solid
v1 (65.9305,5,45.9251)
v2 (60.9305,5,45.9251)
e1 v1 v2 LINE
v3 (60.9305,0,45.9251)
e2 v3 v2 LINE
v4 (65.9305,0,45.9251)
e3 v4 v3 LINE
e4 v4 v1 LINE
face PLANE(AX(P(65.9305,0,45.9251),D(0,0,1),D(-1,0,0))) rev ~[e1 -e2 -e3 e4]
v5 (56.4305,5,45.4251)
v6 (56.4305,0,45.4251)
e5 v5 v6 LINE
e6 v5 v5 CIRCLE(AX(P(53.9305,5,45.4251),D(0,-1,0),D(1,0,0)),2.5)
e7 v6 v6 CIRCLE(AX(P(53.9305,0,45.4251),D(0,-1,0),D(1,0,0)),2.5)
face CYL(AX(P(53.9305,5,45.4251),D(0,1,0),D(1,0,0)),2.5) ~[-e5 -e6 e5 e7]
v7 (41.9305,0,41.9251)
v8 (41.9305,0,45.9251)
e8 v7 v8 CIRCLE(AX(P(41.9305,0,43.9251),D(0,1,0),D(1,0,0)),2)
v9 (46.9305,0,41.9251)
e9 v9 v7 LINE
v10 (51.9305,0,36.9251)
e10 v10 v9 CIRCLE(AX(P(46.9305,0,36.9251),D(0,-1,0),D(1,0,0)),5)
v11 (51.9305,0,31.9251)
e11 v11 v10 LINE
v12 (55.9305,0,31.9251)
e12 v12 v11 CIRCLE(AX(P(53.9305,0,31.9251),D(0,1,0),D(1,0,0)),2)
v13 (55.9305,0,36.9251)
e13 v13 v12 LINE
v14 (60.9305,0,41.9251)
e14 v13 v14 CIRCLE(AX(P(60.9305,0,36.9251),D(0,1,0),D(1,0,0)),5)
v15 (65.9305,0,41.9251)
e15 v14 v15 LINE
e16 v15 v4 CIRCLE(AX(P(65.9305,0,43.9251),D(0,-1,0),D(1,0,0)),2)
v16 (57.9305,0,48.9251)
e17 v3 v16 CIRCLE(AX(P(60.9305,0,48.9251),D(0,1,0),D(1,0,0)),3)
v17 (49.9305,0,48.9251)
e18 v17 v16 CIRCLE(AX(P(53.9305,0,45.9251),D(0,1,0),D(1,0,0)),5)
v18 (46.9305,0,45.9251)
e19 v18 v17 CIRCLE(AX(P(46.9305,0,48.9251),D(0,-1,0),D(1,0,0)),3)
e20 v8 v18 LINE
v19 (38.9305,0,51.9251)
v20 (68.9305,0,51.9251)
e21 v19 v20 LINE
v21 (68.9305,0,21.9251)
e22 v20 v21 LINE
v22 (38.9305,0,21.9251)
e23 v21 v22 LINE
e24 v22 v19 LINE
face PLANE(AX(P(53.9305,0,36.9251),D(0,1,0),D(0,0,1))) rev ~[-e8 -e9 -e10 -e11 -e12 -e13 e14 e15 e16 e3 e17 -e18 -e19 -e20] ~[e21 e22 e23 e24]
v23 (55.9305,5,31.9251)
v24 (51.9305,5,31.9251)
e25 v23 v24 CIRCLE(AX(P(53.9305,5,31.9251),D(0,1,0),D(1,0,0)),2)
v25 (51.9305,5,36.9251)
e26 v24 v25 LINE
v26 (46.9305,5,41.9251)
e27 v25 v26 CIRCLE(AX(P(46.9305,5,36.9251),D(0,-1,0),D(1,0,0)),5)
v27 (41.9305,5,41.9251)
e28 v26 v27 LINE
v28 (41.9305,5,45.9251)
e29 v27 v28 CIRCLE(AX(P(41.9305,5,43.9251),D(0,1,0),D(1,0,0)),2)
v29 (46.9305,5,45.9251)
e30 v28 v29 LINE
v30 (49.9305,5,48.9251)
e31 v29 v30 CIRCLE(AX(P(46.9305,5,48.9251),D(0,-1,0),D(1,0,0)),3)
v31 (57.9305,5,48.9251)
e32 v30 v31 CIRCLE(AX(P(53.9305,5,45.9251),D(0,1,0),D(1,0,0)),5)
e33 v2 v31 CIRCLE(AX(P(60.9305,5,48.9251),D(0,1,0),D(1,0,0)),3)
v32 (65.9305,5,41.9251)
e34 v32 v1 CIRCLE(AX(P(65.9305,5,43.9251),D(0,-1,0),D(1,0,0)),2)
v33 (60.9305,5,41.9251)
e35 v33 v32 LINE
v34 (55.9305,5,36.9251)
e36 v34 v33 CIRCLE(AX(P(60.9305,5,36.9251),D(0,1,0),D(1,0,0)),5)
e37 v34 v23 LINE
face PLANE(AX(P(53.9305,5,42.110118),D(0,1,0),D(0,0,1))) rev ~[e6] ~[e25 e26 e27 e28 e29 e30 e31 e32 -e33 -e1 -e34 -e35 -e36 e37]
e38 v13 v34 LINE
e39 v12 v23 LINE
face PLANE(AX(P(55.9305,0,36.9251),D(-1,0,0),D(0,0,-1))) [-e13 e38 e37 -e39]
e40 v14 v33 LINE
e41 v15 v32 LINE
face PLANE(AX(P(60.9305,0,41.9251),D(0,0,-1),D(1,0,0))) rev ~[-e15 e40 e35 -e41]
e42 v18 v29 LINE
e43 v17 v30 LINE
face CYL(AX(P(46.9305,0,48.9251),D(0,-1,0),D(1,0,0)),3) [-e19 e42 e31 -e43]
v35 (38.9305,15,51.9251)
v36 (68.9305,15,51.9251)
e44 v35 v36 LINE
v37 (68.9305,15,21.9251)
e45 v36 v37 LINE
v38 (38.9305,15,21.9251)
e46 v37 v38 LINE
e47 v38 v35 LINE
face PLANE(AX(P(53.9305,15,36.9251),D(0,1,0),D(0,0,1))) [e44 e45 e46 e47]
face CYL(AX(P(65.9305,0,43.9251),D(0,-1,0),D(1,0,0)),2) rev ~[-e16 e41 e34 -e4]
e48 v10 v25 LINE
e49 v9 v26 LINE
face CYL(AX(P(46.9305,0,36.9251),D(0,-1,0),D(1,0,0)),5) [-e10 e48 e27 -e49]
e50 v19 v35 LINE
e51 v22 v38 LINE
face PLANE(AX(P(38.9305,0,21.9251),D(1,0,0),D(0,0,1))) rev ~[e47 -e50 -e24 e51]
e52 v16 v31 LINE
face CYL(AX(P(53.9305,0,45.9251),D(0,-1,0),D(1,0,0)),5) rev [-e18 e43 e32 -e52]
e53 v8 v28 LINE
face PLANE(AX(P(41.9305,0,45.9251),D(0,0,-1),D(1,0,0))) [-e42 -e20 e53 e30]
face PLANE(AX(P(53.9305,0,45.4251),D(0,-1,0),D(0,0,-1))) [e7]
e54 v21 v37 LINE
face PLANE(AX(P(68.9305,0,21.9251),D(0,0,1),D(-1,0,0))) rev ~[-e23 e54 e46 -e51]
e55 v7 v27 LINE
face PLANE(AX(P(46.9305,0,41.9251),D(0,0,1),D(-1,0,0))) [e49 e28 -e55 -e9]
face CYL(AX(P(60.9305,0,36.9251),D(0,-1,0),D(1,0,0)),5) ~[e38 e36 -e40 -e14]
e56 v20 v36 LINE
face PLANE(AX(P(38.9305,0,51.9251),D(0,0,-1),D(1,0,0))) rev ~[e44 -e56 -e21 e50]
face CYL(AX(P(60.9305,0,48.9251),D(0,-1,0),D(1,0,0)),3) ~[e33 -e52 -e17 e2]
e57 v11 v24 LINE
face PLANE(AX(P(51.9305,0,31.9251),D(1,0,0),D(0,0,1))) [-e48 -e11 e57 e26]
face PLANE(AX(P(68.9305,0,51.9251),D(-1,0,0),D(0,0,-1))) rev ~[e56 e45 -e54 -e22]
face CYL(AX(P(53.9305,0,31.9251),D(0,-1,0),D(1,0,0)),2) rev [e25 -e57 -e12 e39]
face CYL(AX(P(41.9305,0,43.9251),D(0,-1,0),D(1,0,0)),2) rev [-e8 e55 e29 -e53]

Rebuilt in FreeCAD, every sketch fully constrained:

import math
import FreeCAD as App
import Part
import Sketcher
Q = App.Units.Quantity

doc = App.newDocument("Part")
params = doc.addObject("Spreadsheet::Sheet", "Params")
for row, (alias, value) in enumerate([
    ("sketch1_width", "30 mm"),
    ("pad1_length", "15 mm"),
    ("sketch2_radius", "2 mm"),
    ("sketch2_radius2", "3 mm"),
    ("pocket1_length", "5 mm"),
    ("sketch3_diameter", "5 mm"),
    ("pad2_length", "5 mm"),
], start=1):
    params.set(f"A{row}", alias)
    params.set(f"B{row}", "=" + value)
    params.setAlias(f"B{row}", alias)

body = doc.addObject("PartDesign::Body", "Body")

sketch1 = body.newObject("Sketcher::SketchObject", "Sketch")
sketch1.AttachmentSupport = (doc.getObject("XZ_Plane"), [""])
sketch1.MapMode = "FlatFace"
sketch1.addGeometry(Part.LineSegment(App.Vector(69, 52, 0), App.Vector(39, 52, 0)), False)
sketch1.addGeometry(Part.LineSegment(App.Vector(39, 52, 0), App.Vector(39, 22, 0)), False)
sketch1.addGeometry(Part.LineSegment(App.Vector(39, 22, 0), App.Vector(69, 22, 0)), False)
sketch1.addGeometry(Part.LineSegment(App.Vector(69, 22, 0), App.Vector(69, 52, 0)), False)
sketch1.addConstraint(Sketcher.Constraint("Coincident", 0, 2, 1, 1))
sketch1.addConstraint(Sketcher.Constraint("Coincident", 1, 2, 2, 1))
sketch1.addConstraint(Sketcher.Constraint("Coincident", 2, 2, 3, 1))
sketch1.addConstraint(Sketcher.Constraint("Coincident", 3, 2, 0, 1))
sketch1.addConstraint(Sketcher.Constraint("Horizontal", 0))
sketch1.addConstraint(Sketcher.Constraint("Vertical", 1))
sketch1.addConstraint(Sketcher.Constraint("Horizontal", 2))
sketch1.addConstraint(Sketcher.Constraint("Vertical", 3))
sketch1.addConstraint(Sketcher.Constraint("Equal", 2, 1))
sketch1.addConstraint(Sketcher.Constraint("DistanceX", 0, 2, 0, 1, Q("30 mm")))
sketch1.addConstraint(Sketcher.Constraint("DistanceX", -1, 1, 0, 2, Q("38.9305 mm")))
sketch1.addConstraint(Sketcher.Constraint("DistanceY", -1, 1, 0, 2, Q("51.925 mm")))
sketch1.setExpression("Constraints[9]", "Params.sketch1_width")
pad1 = body.newObject("PartDesign::Pad", "Pad")
pad1.Profile = sketch1
pad1.setExpression("Length", "Params.pad1_length")
pad1.Reversed = True

sketch2 = body.newObject("Sketcher::SketchObject", "Sketch001")
sketch2.AttachmentSupport = (doc.getObject("XZ_Plane"), [""])
sketch2.MapMode = "FlatFace"
sketch2.addGeometry(Part.LineSegment(App.Vector(55.9, 31.9, 0), App.Vector(55.9, 36.9, 0)), False)
sketch2.addGeometry(Part.ArcOfCircle(Part.Circle(App.Vector(60.9, 36.9, 0), App.Vector(0, 0, 1), 5), math.radians(90), math.radians(180)), False)
sketch2.addGeometry(Part.LineSegment(App.Vector(60.9, 41.9, 0), App.Vector(65.9, 41.9, 0)), False)
sketch2.addGeometry(Part.ArcOfCircle(Part.Circle(App.Vector(65.9, 43.9, 0), App.Vector(0, 0, 1), 2), math.radians(-90), math.radians(90)), False)
sketch2.addGeometry(Part.LineSegment(App.Vector(65.9, 45.9, 0), App.Vector(60.9, 45.9, 0)), False)
sketch2.addGeometry(Part.ArcOfCircle(Part.Circle(App.Vector(60.9, 48.9, 0), App.Vector(0, 0, 1), 3), math.radians(180), math.radians(270)), False)
sketch2.addGeometry(Part.ArcOfCircle(Part.Circle(App.Vector(53.9, 45.9, 0), App.Vector(0, 0, 1), 5), math.radians(37), math.radians(143)), False)
sketch2.addGeometry(Part.ArcOfCircle(Part.Circle(App.Vector(46.9, 48.9, 0), App.Vector(0, 0, 1), 3), math.radians(-90), math.radians(0)), False)
sketch2.addGeometry(Part.LineSegment(App.Vector(46.9, 45.9, 0), App.Vector(41.9, 45.9, 0)), False)
sketch2.addGeometry(Part.ArcOfCircle(Part.Circle(App.Vector(41.9, 43.9, 0), App.Vector(0, 0, 1), 2), math.radians(90), math.radians(270)), False)
sketch2.addGeometry(Part.LineSegment(App.Vector(41.9, 41.9, 0), App.Vector(46.9, 41.9, 0)), False)
sketch2.addGeometry(Part.ArcOfCircle(Part.Circle(App.Vector(46.9, 36.9, 0), App.Vector(0, 0, 1), 5), math.radians(0), math.radians(90)), False)
sketch2.addGeometry(Part.LineSegment(App.Vector(51.9, 36.9, 0), App.Vector(51.9, 31.9, 0)), False)
sketch2.addGeometry(Part.ArcOfCircle(Part.Circle(App.Vector(53.9, 31.9, 0), App.Vector(0, 0, 1), 2), math.radians(180), math.radians(360)), False)
sketch2.addConstraint(Sketcher.Constraint("Tangent", 0, 2, 1, 2))
sketch2.addConstraint(Sketcher.Constraint("Tangent", 1, 1, 2, 1))
sketch2.addConstraint(Sketcher.Constraint("Tangent", 2, 2, 3, 1))
sketch2.addConstraint(Sketcher.Constraint("Tangent", 3, 2, 4, 1))
sketch2.addConstraint(Sketcher.Constraint("Tangent", 4, 2, 5, 2))
sketch2.addConstraint(Sketcher.Constraint("Coincident", 5, 1, 6, 1))
sketch2.addConstraint(Sketcher.Constraint("Coincident", 6, 2, 7, 2))
sketch2.addConstraint(Sketcher.Constraint("Tangent", 7, 1, 8, 1))
sketch2.addConstraint(Sketcher.Constraint("Tangent", 8, 2, 9, 1))
sketch2.addConstraint(Sketcher.Constraint("Tangent", 9, 2, 10, 1))
sketch2.addConstraint(Sketcher.Constraint("Tangent", 10, 2, 11, 2))
sketch2.addConstraint(Sketcher.Constraint("Tangent", 11, 1, 12, 1))
sketch2.addConstraint(Sketcher.Constraint("Tangent", 12, 2, 13, 1))
sketch2.addConstraint(Sketcher.Constraint("Tangent", 13, 2, 0, 1))
sketch2.addConstraint(Sketcher.Constraint("Vertical", 0))
sketch2.addConstraint(Sketcher.Constraint("Horizontal", 2))
sketch2.addConstraint(Sketcher.Constraint("Horizontal", 4))
sketch2.addConstraint(Sketcher.Constraint("Horizontal", 8))
sketch2.addConstraint(Sketcher.Constraint("Horizontal", 10))
sketch2.addConstraint(Sketcher.Constraint("Vertical", 12))
sketch2.addConstraint(Sketcher.Constraint("Equal", 1, 6))
sketch2.addConstraint(Sketcher.Constraint("Equal", 5, 7))
sketch2.addConstraint(Sketcher.Constraint("Equal", 3, 9))
sketch2.addConstraint(Sketcher.Constraint("Equal", 6, 11))
sketch2.addConstraint(Sketcher.Constraint("Equal", 9, 13))
sketch2.addConstraint(Sketcher.Constraint("Horizontal", 5, 3, 7, 3))
sketch2.addConstraint(Sketcher.Constraint("Horizontal", 6, 3, 3, 2))
sketch2.addConstraint(Sketcher.Constraint("Horizontal", 7, 3, 5, 1))
sketch2.addConstraint(Sketcher.Constraint("Horizontal", 5, 1, 6, 2))
sketch2.addConstraint(Sketcher.Constraint("Vertical", 1, 3, 5, 3))
sketch2.addConstraint(Sketcher.Constraint("Vertical", 7, 3, 11, 3))
sketch2.addConstraint(Sketcher.Constraint("Equal", 4, 8))
sketch2.addConstraint(Sketcher.Constraint("Equal", 10, 0))
sketch2.addConstraint(Sketcher.Constraint("Radius", 3, Q("2 mm")))
sketch2.addConstraint(Sketcher.Constraint("Radius", 5, Q("3 mm")))
sketch2.addConstraint(Sketcher.Constraint("DistanceX", 6, 3, 3, 3, Q("12 mm")))
sketch2.addConstraint(Sketcher.Constraint("DistanceY", -1, 1, 1, 3, Q("36.925 mm")))
sketch2.addConstraint(Sketcher.Constraint("DistanceX", -1, 1, 1, 3, Q("60.9305 mm")))
sketch2.setExpression("Constraints[33]", "Params.sketch2_radius")
sketch2.setExpression("Constraints[34]", "Params.sketch2_radius2")
pocket1 = body.newObject("PartDesign::Pocket", "Pocket")
pocket1.Profile = sketch2
pocket1.setExpression("Length", "Params.pocket1_length")

sketch3 = body.newObject("Sketcher::SketchObject", "Sketch002")
sketch3.AttachmentSupport = (doc.getObject("XZ_Plane"), [""])
sketch3.MapMode = "FlatFace"
sketch3.AttachmentOffset = App.Placement(App.Vector(0, 0, -5), App.Rotation())
sketch3.addGeometry(Part.Circle(App.Vector(53.9, 45.4, 0), App.Vector(0, 0, 1), 2.5), False)
sketch3.addConstraint(Sketcher.Constraint("Diameter", 0, Q("5 mm")))
sketch3.addConstraint(Sketcher.Constraint("DistanceY", -1, 1, 0, 3, Q("45.425 mm")))
sketch3.addConstraint(Sketcher.Constraint("DistanceX", -1, 1, 0, 3, Q("53.9305 mm")))
sketch3.setExpression("Constraints[0]", "Params.sketch3_diameter")
pad2 = body.newObject("PartDesign::Pad", "Pad001")
pad2.Profile = sketch3
pad2.setExpression("Length", "Params.pad2_length")

doc.recompute()
